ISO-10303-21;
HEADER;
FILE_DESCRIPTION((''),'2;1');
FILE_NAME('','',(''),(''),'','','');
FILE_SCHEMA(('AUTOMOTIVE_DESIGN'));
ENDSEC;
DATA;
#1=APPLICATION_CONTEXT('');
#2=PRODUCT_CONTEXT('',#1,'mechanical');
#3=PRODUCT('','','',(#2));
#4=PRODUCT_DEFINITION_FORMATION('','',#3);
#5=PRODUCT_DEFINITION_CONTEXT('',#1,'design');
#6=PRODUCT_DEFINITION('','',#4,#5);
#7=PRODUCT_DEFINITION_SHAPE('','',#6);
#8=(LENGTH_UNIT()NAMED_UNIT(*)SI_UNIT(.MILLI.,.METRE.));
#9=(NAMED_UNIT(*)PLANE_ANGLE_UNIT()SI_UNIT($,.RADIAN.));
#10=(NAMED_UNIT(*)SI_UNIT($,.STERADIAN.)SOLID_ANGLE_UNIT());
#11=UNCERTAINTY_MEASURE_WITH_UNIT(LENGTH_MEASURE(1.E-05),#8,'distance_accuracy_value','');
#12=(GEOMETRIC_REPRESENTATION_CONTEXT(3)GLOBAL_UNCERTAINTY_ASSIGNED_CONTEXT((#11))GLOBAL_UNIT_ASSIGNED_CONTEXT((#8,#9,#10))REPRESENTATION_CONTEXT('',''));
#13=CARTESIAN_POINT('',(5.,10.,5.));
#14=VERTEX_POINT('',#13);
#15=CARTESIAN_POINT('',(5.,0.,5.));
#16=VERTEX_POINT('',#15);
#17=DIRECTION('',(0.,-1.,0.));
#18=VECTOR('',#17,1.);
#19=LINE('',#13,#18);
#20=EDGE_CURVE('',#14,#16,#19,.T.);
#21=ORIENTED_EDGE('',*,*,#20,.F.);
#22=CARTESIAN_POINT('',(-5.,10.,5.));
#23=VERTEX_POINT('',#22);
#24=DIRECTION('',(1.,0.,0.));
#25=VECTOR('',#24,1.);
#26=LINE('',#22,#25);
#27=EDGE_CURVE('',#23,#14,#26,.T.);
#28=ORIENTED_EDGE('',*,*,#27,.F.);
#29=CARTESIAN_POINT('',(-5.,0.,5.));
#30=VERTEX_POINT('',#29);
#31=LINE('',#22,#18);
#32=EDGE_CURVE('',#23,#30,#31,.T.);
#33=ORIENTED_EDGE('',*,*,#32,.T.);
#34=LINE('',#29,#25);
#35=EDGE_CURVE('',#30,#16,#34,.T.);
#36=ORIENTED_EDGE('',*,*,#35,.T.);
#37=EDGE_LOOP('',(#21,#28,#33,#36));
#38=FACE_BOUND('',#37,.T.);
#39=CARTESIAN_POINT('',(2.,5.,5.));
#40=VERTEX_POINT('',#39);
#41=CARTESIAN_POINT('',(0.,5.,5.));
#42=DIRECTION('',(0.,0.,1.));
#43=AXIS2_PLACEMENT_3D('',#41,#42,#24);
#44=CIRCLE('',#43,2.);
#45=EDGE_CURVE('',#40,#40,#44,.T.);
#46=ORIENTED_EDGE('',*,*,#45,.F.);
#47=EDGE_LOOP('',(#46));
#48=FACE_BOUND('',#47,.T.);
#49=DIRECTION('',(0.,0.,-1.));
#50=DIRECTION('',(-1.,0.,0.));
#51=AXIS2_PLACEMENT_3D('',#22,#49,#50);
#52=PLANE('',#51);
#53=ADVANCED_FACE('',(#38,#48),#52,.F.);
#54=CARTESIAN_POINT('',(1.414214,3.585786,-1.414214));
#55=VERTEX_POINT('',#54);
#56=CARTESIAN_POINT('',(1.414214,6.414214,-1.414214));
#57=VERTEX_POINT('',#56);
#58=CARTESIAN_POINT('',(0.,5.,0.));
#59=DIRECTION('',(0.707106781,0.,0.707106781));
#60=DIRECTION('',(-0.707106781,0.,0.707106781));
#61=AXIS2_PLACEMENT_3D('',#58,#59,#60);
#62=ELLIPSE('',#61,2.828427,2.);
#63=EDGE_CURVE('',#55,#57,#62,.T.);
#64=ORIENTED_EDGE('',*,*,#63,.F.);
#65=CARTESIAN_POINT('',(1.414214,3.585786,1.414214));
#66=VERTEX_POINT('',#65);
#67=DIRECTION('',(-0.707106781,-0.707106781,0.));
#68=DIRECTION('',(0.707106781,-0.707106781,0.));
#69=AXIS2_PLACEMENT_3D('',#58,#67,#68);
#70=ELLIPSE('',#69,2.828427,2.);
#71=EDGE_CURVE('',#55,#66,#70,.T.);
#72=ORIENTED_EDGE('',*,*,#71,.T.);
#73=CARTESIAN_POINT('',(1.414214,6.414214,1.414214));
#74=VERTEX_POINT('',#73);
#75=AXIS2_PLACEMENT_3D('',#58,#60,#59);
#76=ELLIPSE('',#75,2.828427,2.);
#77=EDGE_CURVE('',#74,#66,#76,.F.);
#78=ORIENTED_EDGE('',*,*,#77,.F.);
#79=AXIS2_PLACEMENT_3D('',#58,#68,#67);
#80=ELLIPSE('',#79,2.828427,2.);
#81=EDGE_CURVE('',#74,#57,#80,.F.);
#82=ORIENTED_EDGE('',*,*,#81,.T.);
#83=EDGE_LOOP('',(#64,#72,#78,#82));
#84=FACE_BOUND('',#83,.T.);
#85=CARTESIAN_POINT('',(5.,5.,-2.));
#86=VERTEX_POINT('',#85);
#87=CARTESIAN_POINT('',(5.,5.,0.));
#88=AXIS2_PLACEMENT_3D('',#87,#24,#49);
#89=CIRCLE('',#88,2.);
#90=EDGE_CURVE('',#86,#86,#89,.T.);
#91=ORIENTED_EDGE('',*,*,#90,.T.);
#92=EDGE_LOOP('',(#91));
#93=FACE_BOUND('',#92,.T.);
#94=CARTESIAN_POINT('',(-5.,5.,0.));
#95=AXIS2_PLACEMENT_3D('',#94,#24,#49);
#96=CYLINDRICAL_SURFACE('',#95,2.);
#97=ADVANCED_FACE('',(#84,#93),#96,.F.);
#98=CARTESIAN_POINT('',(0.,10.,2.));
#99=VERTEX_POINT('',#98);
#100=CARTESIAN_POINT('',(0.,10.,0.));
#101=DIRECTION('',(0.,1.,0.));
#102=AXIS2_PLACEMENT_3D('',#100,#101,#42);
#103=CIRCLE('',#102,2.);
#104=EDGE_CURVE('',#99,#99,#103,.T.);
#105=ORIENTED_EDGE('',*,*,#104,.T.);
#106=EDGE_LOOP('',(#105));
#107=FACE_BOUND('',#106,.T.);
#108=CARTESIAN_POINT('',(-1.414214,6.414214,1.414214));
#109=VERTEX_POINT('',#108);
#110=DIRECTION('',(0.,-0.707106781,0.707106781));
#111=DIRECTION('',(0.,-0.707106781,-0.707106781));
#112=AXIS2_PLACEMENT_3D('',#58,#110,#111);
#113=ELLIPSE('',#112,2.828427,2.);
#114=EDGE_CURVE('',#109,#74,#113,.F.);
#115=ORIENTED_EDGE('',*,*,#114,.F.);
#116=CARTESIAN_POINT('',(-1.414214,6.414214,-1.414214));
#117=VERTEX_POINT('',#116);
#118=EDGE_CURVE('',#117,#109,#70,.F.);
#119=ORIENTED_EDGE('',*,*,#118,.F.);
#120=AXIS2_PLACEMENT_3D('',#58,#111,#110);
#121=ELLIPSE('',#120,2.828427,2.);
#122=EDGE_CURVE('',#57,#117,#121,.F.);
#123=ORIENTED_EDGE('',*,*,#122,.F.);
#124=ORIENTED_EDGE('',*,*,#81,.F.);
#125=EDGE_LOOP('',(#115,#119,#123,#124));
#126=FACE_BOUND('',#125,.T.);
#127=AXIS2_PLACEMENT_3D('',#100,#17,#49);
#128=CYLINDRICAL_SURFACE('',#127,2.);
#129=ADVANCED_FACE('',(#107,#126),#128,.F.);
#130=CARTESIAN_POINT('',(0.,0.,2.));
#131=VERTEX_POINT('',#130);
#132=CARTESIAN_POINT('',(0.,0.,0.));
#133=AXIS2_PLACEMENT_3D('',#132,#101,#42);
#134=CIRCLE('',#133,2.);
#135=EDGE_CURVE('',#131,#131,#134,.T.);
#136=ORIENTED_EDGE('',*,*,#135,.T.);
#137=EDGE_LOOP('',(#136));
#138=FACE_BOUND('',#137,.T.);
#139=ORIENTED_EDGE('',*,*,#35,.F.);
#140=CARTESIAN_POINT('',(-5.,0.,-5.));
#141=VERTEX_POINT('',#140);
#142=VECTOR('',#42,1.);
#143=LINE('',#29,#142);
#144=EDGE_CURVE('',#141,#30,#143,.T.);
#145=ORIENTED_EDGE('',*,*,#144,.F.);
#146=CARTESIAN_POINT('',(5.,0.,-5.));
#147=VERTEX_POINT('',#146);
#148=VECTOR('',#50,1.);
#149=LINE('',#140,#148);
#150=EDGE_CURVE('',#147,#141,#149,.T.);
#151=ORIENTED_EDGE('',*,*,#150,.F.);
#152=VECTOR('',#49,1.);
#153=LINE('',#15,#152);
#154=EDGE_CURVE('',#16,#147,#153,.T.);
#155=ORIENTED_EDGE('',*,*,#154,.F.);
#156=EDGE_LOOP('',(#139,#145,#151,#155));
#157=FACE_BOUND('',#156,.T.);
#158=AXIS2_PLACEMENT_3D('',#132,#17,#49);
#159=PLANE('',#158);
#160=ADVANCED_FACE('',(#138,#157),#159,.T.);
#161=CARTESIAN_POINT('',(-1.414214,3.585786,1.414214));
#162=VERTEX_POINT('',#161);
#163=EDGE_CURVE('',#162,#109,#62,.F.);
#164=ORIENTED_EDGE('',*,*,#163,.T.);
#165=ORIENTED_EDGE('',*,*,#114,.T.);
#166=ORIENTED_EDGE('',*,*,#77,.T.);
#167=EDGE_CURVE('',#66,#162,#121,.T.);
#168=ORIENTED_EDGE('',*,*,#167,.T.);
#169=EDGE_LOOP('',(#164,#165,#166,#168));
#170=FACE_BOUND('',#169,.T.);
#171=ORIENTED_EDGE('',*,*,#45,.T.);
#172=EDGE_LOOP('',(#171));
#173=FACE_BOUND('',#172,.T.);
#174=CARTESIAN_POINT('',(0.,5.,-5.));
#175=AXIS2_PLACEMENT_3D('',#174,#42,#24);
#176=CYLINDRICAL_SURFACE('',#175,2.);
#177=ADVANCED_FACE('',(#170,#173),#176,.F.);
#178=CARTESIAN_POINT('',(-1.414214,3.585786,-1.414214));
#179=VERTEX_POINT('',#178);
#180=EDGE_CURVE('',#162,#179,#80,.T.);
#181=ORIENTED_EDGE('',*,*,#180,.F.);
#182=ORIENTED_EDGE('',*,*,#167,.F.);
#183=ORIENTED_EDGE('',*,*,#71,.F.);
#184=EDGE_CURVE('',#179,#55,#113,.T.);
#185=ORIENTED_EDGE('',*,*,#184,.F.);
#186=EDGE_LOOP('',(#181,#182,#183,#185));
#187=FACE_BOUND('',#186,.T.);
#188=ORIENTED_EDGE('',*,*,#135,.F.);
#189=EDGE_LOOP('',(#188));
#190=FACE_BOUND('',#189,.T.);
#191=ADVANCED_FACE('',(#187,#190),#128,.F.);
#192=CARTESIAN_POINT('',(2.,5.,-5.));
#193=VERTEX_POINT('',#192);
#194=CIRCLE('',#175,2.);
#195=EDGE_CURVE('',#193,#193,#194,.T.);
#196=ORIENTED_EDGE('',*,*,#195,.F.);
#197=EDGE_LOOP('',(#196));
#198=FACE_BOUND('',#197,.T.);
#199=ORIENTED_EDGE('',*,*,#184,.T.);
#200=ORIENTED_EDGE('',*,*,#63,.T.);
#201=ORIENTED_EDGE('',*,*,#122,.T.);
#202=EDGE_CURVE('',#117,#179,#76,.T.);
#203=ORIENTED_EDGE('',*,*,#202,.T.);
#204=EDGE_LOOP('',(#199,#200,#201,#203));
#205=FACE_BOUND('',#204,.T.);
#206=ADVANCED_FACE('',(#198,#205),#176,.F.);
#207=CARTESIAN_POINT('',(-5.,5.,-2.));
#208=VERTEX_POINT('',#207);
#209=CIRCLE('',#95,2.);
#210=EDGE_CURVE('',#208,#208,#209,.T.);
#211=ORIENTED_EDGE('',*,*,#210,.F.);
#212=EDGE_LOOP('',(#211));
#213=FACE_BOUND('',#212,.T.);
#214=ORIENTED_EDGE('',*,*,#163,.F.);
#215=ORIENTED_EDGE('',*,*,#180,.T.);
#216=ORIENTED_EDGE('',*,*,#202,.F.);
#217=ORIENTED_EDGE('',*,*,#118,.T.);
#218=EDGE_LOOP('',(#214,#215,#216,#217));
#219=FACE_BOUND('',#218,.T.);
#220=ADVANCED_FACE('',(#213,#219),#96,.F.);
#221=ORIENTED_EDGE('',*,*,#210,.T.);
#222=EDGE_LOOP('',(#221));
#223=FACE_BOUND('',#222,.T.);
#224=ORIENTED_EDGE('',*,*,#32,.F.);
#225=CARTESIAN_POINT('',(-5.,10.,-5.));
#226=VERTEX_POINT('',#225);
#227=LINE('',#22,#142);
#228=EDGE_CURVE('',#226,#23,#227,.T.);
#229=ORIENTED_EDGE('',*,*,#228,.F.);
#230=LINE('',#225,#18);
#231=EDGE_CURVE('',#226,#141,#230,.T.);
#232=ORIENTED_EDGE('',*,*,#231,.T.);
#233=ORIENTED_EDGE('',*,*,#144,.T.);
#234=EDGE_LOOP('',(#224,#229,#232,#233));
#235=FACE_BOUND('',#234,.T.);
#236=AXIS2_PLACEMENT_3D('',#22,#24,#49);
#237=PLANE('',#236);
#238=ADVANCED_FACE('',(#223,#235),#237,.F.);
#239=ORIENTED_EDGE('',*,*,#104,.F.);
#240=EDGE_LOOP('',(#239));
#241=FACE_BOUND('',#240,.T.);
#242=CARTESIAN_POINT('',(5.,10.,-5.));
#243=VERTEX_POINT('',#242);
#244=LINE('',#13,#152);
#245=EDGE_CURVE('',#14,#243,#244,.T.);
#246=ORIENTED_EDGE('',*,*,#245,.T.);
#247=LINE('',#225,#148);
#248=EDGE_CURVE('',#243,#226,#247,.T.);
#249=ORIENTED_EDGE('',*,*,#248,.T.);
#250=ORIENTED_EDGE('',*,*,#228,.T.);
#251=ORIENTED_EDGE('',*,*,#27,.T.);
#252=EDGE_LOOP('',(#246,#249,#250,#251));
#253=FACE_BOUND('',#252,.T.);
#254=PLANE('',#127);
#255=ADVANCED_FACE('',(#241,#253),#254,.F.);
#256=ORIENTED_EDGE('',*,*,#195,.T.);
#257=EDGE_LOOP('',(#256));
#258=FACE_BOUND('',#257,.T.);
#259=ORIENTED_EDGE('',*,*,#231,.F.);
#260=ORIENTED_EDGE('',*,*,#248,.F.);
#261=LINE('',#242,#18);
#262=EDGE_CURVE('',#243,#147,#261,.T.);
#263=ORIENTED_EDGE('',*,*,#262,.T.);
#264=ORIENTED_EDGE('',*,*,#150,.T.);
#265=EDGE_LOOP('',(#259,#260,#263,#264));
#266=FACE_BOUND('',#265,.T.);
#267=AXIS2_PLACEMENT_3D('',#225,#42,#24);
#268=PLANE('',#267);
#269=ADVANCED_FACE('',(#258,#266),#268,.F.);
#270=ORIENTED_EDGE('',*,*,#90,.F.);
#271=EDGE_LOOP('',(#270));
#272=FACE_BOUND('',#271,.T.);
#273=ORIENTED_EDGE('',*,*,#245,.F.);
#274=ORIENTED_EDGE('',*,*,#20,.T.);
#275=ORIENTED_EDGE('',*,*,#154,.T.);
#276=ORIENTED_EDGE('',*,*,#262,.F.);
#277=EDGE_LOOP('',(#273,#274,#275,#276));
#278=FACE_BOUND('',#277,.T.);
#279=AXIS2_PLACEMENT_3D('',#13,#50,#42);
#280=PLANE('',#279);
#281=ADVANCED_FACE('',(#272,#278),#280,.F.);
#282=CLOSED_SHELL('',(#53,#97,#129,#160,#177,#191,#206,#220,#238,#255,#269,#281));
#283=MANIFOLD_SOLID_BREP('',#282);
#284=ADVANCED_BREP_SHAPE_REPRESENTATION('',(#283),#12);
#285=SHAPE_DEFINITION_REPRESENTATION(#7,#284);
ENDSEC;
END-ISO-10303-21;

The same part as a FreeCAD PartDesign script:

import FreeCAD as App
import Part
import Sketcher
from FreeCAD import Vector

doc = App.newDocument("Part")
body = doc.addObject("PartDesign::Body", "Body")

# Sketch on XZ plane
sketch1 = body.newObject("Sketcher::SketchObject", "Sketch")
sketch1.AttachmentSupport = (doc.getObject("XZ_Plane"), [""])
sketch1.MapMode = "FlatFace"
sketch1.addGeometry([
    Part.LineSegment(Vector(-5, -5, 0), Vector(-5, 5, 0)),  # 0
    Part.LineSegment(Vector(-5, 5, 0), Vector(5, 5, 0)),  # 1
    Part.LineSegment(Vector(5, 5, 0), Vector(5, -5, 0)),  # 2
    Part.LineSegment(Vector(5, -5, 0), Vector(-5, -5, 0)),  # 3
    Part.Circle(Vector(0, 0, 0), Vector(0, 0, 1), 2),  # 4
], False)
sketch1.addConstraint([
    Sketcher.Constraint("Coincident", 0, 2, 1, 1),
    Sketcher.Constraint("Coincident", 1, 2, 2, 1),
    Sketcher.Constraint("Coincident", 2, 2, 3, 1),
    Sketcher.Constraint("Coincident", 3, 2, 0, 1),
    Sketcher.Constraint("Vertical", 0),
    Sketcher.Constraint("Horizontal", 1),
    Sketcher.Constraint("Vertical", 2),
    Sketcher.Constraint("Horizontal", 3),
    Sketcher.Constraint("Coincident", 4, 3, -1, 1),
    Sketcher.Constraint("Symmetric", 0, 2, 2, 2, -1, 1),
    Sketcher.Constraint("Equal", 3, 0),
    Sketcher.Constraint("Diameter", 4, 4.0),
    Sketcher.Constraint("DistanceX", 1, 1, 1, 2, 10.0),
])
pad1 = body.newObject("PartDesign::Pad", "Pad")
pad1.Profile = sketch1
pad1.Length = 10
pad1.Reversed = True

# Sketch on XY plane
sketch2 = body.newObject("Sketcher::SketchObject", "Sketch001")
sketch2.AttachmentSupport = (doc.getObject("XY_Plane"), [""])
sketch2.MapMode = "FlatFace"
sketch2.AttachmentOffset = App.Placement(Vector(0, 0, 5), App.Rotation())
sketch2.addGeometry(Part.Circle(Vector(0, 5, 0), Vector(0, 0, 1), 2), False)
sketch2.addConstraint([
    Sketcher.Constraint("PointOnObject", 0, 3, -2),
    Sketcher.Constraint("Diameter", 0, 4.0),
    Sketcher.Constraint("DistanceY", -1, 1, 0, 3, 5.0),
])
pocket1 = body.newObject("PartDesign::Pocket", "Pocket")
pocket1.Profile = sketch2
pocket1.Length = 10

# Sketch on YZ plane
sketch3 = body.newObject("Sketcher::SketchObject", "Sketch002")
sketch3.AttachmentSupport = (doc.getObject("YZ_Plane"), [""])
sketch3.MapMode = "FlatFace"
sketch3.AttachmentOffset = App.Placement(Vector(0, 0, 5), App.Rotation())
sketch3.addGeometry(Part.Circle(Vector(5, 0, 0), Vector(0, 0, 1), 2), False)
sketch3.addConstraint([
    Sketcher.Constraint("PointOnObject", 0, 3, -1),
    Sketcher.Constraint("Diameter", 0, 4.0),
    Sketcher.Constraint("DistanceX", -1, 1, 0, 3, 5.0),
])
pocket2 = body.newObject("PartDesign::Pocket", "Pocket001")
pocket2.Profile = sketch3
pocket2.Length = 10

doc.recompute()
